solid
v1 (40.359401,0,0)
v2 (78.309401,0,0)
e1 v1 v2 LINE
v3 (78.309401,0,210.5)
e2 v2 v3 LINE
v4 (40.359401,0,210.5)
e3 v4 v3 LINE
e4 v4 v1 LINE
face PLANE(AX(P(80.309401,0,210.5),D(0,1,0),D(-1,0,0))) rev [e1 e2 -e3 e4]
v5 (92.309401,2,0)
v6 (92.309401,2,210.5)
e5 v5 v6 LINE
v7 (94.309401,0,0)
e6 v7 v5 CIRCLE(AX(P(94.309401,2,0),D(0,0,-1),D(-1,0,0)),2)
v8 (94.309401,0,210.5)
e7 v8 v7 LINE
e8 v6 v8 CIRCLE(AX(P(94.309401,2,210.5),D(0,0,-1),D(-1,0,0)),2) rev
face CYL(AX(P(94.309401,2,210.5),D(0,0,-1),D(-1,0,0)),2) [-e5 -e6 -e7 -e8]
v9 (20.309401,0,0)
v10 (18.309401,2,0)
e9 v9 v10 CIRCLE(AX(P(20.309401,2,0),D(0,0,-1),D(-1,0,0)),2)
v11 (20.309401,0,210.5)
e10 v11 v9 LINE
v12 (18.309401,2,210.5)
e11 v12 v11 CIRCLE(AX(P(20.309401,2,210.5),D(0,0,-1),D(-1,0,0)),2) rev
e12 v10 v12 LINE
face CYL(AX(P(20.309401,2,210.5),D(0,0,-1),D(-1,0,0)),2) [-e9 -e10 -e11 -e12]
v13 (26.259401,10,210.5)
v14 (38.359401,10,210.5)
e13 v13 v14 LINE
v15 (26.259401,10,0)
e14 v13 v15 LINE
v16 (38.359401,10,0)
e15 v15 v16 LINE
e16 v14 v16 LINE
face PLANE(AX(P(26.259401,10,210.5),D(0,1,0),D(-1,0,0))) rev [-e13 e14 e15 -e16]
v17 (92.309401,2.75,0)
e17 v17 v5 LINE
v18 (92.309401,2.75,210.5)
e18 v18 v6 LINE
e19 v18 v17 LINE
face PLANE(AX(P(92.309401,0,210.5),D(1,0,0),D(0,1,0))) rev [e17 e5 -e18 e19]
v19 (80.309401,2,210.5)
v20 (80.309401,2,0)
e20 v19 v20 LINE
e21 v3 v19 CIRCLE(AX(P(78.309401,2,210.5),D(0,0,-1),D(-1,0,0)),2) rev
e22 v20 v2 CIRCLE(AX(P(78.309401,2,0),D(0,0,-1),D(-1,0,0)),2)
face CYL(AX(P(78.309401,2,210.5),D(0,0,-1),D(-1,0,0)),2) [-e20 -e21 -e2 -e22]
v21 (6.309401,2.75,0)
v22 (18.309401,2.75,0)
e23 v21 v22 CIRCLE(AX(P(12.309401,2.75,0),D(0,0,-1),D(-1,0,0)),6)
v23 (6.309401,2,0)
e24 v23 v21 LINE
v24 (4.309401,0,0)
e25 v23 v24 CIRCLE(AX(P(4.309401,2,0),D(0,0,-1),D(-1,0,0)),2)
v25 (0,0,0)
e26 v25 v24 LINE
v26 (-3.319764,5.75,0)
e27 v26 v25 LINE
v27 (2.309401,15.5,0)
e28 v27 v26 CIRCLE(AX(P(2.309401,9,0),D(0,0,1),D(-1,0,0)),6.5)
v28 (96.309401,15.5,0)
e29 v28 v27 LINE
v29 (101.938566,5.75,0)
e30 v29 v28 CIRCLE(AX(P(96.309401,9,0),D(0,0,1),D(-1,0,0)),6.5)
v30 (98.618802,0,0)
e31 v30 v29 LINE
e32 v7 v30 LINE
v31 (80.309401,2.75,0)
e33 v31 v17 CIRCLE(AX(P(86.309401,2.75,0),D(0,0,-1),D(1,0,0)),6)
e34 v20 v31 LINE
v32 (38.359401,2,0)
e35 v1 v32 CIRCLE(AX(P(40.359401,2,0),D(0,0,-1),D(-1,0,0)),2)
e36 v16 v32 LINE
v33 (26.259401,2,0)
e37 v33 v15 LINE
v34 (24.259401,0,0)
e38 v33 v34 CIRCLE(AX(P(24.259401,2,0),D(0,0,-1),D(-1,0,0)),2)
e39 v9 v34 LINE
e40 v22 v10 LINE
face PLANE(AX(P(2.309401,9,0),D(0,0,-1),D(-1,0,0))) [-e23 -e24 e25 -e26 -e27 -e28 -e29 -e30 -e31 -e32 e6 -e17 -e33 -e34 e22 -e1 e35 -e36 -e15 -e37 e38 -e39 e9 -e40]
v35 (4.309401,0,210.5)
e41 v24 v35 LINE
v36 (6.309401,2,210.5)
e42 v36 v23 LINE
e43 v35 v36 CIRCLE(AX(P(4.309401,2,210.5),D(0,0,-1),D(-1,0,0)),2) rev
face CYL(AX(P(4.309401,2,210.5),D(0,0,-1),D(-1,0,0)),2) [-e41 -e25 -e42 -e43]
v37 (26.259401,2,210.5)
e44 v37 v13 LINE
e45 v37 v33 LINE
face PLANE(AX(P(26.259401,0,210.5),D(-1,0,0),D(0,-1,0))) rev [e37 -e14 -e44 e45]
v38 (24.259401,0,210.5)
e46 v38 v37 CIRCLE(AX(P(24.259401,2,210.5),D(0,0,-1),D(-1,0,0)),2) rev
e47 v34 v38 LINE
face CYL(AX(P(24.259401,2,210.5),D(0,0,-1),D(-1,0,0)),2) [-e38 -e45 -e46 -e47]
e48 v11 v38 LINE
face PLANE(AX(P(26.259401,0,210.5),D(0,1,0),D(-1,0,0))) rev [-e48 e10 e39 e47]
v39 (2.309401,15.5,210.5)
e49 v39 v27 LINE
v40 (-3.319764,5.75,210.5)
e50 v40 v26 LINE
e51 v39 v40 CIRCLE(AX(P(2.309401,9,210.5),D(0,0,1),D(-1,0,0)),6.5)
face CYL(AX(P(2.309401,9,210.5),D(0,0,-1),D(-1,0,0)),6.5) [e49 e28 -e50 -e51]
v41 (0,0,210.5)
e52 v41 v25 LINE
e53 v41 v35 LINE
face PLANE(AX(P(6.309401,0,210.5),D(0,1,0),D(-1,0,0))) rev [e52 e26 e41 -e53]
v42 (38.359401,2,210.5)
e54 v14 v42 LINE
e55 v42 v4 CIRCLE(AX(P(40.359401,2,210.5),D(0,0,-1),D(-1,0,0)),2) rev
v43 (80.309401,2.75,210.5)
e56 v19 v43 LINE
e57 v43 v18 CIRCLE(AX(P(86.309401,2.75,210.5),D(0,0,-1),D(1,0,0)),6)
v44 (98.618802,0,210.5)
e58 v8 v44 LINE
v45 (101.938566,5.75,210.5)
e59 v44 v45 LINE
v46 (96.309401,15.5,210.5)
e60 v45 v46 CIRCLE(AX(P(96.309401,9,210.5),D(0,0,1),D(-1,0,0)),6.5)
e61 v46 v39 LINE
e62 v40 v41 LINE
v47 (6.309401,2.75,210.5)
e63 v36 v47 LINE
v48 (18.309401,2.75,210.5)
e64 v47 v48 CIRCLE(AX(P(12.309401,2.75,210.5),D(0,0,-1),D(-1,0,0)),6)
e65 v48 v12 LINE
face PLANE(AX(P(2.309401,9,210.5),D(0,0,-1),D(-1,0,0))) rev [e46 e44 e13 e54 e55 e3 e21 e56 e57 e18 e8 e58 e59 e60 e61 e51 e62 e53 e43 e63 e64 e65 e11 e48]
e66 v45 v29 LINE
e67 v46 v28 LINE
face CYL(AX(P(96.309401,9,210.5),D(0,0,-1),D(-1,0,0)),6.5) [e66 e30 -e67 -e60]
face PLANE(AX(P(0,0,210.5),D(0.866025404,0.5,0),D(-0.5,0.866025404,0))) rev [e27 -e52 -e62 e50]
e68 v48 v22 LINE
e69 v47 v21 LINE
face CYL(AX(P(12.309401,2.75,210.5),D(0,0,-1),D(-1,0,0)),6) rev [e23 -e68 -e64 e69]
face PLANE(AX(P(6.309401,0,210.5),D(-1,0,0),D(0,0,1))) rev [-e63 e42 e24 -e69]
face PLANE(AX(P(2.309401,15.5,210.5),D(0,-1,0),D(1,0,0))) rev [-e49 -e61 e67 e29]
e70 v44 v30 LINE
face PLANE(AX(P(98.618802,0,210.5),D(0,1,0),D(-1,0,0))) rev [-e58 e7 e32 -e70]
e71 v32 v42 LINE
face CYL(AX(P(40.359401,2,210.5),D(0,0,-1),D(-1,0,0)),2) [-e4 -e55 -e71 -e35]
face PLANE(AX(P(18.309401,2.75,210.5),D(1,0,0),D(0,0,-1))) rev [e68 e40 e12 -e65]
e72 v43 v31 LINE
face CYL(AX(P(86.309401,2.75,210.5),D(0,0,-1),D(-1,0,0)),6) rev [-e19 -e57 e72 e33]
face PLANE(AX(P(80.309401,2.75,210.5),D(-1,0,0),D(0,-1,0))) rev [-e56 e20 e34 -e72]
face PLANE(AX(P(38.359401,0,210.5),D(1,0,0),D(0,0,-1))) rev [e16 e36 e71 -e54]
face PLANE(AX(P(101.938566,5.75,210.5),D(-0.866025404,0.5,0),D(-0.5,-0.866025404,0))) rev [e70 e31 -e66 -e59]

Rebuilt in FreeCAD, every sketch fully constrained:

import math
import FreeCAD as App
import Part
import Sketcher
Q = App.Units.Quantity


def edges_at(feature, points):
    """Names of the edges that pass closest to the given points."""
    edges = feature.Shape.Edges
    near = lambda p: min(range(len(edges)), key=lambda i: edges[i].distToShape(Part.Vertex(*p))[0])
    return sorted({f"Edge{near(p) + 1}" for p in points})

doc = App.newDocument("Part")
body = doc.addObject("PartDesign::Body", "Body")

sketch1 = body.newObject("Sketcher::SketchObject", "Sketch")
sketch1.AttachmentSupport = (doc.getObject("XY_Plane"), [""])
sketch1.MapMode = "FlatFace"
sketch1.addGeometry([
    Part.LineSegment(App.Vector(-3.3, 5.8, 0), App.Vector(0, 0, 0)),
    Part.LineSegment(App.Vector(0, 0, 0), App.Vector(6.3, 0, 0)),
    Part.LineSegment(App.Vector(6.3, 0, 0), App.Vector(6.3, 2.8, 0)),
    Part.ArcOfCircle(Part.Circle(App.Vector(12.3, 2.8, 0), App.Vector(0, 0, 1), 6), math.radians(0), math.radians(180)),
    Part.LineSegment(App.Vector(18.3, 2.8, 0), App.Vector(18.3, 0, 0)),
    Part.LineSegment(App.Vector(18.3, 0, 0), App.Vector(26.3, 0, 0)),
    Part.LineSegment(App.Vector(26.3, 0, 0), App.Vector(26.3, 10, 0)),
    Part.LineSegment(App.Vector(26.3, 10, 0), App.Vector(38.4, 10, 0)),
    Part.LineSegment(App.Vector(38.4, 10, 0), App.Vector(38.4, 0, 0)),
    Part.LineSegment(App.Vector(38.4, 0, 0), App.Vector(80.3, 0, 0)),
    Part.LineSegment(App.Vector(80.3, 0, 0), App.Vector(80.3, 2.8, 0)),
    Part.ArcOfCircle(Part.Circle(App.Vector(86.3, 2.8, 0), App.Vector(0, 0, 1), 6), math.radians(0), math.radians(180)),
    Part.LineSegment(App.Vector(92.3, 2.8, 0), App.Vector(92.3, 0, 0)),
    Part.LineSegment(App.Vector(92.3, 0, 0), App.Vector(98.6, 0, 0)),
    Part.LineSegment(App.Vector(98.6, 0, 0), App.Vector(101.9, 5.8, 0)),
    Part.ArcOfCircle(Part.Circle(App.Vector(96.3, 9, 0), App.Vector(0, 0, 1), 6.5), math.radians(-30), math.radians(90)),
    Part.LineSegment(App.Vector(96.3, 15.5, 0), App.Vector(2.3, 15.5, 0)),
    Part.ArcOfCircle(Part.Circle(App.Vector(2.3, 9, 0), App.Vector(0, 0, 1), 6.5), math.radians(90), math.radians(210)),
], False)
sketch1.addConstraint([
    Sketcher.Constraint("Coincident", 0, 2, 1, 1),
    Sketcher.Constraint("Coincident", 1, 2, 2, 1),
    Sketcher.Constraint("Tangent", 2, 2, 3, 2),
    Sketcher.Constraint("Tangent", 3, 1, 4, 1),
    Sketcher.Constraint("Coincident", 4, 2, 5, 1),
    Sketcher.Constraint("Coincident", 5, 2, 6, 1),
    Sketcher.Constraint("Coincident", 6, 2, 7, 1),
    Sketcher.Constraint("Coincident", 7, 2, 8, 1),
    Sketcher.Constraint("Coincident", 8, 2, 9, 1),
    Sketcher.Constraint("Coincident", 9, 2, 10, 1),
    Sketcher.Constraint("Tangent", 10, 2, 11, 2),
    Sketcher.Constraint("Tangent", 11, 1, 12, 1),
    Sketcher.Constraint("Coincident", 12, 2, 13, 1),
    Sketcher.Constraint("Coincident", 13, 2, 14, 1),
    Sketcher.Constraint("Tangent", 14, 2, 15, 1),
    Sketcher.Constraint("Tangent", 15, 2, 16, 1),
    Sketcher.Constraint("Tangent", 16, 2, 17, 1),
    Sketcher.Constraint("Tangent", 17, 2, 0, 1),
    Sketcher.Constraint("Horizontal", 1),
    Sketcher.Constraint("Vertical", 2),
    Sketcher.Constraint("Vertical", 4),
    Sketcher.Constraint("Horizontal", 5),
    Sketcher.Constraint("Vertical", 6),
    Sketcher.Constraint("Horizontal", 7),
    Sketcher.Constraint("Vertical", 8),
    Sketcher.Constraint("Horizontal", 9),
    Sketcher.Constraint("Vertical", 10),
    Sketcher.Constraint("Vertical", 12),
    Sketcher.Constraint("Horizontal", 13),
    Sketcher.Constraint("Horizontal", 16),
    Sketcher.Constraint("Coincident", 0, 2, -1, 1),
    Sketcher.Constraint("Equal", 3, 11),
    Sketcher.Constraint("Equal", 15, 17),
    Sketcher.Constraint("PointOnObject", 4, 2, -1),
    Sketcher.Constraint("PointOnObject", 8, 2, -1),
    Sketcher.Constraint("PointOnObject", 12, 2, -1),
    Sketcher.Constraint("Horizontal", 3, 3, 11, 3),
    Sketcher.Constraint("Horizontal", 14, 2, 17, 2),
    Sketcher.Constraint("Equal", 1, 13),
    Sketcher.Constraint("Radius", 3, Q("6 mm")),
    Sketcher.Constraint("Radius", 15, Q("6.5 mm")),
    Sketcher.Constraint("DistanceX", 16, 2, 16, 1, Q("94 mm")),
    Sketcher.Constraint("DistanceY", 6, 1, 6, 2, Q("10 mm")),
    Sketcher.Constraint("Angle", 0, Q("-60 deg")),
    Sketcher.Constraint("DistanceX", 7, 1, 7, 2, Q("12.1 mm")),
    Sketcher.Constraint("DistanceY", -1, 1, 15, 3, Q("9 mm")),
    Sketcher.Constraint("DistanceX", 3, 3, 11, 3, Q("74 mm")),
    Sketcher.Constraint("DistanceY", 11, 1, 14, 2, Q("3 mm")),
    Sketcher.Constraint("DistanceX", 5, 1, 5, 2, Q("7.95 mm")),
])
pad1 = body.newObject("PartDesign::Pad", "Pad")
pad1.Profile = sketch1
pad1.Length = 210.5
doc.recompute()

fillet = body.newObject("PartDesign::Fillet", "Fillet")
fillet.Base = (pad1, edges_at(pad1, [
    (92.309, 0, 105.25),
    (80.309, 0, 105.25),
    (38.359, 0, 105.25),
    (26.259, 0, 105.25),
    (18.309, 0, 105.25),
    (6.309, 0, 105.25),
]))
fillet.Radius = 2

doc.recompute()
